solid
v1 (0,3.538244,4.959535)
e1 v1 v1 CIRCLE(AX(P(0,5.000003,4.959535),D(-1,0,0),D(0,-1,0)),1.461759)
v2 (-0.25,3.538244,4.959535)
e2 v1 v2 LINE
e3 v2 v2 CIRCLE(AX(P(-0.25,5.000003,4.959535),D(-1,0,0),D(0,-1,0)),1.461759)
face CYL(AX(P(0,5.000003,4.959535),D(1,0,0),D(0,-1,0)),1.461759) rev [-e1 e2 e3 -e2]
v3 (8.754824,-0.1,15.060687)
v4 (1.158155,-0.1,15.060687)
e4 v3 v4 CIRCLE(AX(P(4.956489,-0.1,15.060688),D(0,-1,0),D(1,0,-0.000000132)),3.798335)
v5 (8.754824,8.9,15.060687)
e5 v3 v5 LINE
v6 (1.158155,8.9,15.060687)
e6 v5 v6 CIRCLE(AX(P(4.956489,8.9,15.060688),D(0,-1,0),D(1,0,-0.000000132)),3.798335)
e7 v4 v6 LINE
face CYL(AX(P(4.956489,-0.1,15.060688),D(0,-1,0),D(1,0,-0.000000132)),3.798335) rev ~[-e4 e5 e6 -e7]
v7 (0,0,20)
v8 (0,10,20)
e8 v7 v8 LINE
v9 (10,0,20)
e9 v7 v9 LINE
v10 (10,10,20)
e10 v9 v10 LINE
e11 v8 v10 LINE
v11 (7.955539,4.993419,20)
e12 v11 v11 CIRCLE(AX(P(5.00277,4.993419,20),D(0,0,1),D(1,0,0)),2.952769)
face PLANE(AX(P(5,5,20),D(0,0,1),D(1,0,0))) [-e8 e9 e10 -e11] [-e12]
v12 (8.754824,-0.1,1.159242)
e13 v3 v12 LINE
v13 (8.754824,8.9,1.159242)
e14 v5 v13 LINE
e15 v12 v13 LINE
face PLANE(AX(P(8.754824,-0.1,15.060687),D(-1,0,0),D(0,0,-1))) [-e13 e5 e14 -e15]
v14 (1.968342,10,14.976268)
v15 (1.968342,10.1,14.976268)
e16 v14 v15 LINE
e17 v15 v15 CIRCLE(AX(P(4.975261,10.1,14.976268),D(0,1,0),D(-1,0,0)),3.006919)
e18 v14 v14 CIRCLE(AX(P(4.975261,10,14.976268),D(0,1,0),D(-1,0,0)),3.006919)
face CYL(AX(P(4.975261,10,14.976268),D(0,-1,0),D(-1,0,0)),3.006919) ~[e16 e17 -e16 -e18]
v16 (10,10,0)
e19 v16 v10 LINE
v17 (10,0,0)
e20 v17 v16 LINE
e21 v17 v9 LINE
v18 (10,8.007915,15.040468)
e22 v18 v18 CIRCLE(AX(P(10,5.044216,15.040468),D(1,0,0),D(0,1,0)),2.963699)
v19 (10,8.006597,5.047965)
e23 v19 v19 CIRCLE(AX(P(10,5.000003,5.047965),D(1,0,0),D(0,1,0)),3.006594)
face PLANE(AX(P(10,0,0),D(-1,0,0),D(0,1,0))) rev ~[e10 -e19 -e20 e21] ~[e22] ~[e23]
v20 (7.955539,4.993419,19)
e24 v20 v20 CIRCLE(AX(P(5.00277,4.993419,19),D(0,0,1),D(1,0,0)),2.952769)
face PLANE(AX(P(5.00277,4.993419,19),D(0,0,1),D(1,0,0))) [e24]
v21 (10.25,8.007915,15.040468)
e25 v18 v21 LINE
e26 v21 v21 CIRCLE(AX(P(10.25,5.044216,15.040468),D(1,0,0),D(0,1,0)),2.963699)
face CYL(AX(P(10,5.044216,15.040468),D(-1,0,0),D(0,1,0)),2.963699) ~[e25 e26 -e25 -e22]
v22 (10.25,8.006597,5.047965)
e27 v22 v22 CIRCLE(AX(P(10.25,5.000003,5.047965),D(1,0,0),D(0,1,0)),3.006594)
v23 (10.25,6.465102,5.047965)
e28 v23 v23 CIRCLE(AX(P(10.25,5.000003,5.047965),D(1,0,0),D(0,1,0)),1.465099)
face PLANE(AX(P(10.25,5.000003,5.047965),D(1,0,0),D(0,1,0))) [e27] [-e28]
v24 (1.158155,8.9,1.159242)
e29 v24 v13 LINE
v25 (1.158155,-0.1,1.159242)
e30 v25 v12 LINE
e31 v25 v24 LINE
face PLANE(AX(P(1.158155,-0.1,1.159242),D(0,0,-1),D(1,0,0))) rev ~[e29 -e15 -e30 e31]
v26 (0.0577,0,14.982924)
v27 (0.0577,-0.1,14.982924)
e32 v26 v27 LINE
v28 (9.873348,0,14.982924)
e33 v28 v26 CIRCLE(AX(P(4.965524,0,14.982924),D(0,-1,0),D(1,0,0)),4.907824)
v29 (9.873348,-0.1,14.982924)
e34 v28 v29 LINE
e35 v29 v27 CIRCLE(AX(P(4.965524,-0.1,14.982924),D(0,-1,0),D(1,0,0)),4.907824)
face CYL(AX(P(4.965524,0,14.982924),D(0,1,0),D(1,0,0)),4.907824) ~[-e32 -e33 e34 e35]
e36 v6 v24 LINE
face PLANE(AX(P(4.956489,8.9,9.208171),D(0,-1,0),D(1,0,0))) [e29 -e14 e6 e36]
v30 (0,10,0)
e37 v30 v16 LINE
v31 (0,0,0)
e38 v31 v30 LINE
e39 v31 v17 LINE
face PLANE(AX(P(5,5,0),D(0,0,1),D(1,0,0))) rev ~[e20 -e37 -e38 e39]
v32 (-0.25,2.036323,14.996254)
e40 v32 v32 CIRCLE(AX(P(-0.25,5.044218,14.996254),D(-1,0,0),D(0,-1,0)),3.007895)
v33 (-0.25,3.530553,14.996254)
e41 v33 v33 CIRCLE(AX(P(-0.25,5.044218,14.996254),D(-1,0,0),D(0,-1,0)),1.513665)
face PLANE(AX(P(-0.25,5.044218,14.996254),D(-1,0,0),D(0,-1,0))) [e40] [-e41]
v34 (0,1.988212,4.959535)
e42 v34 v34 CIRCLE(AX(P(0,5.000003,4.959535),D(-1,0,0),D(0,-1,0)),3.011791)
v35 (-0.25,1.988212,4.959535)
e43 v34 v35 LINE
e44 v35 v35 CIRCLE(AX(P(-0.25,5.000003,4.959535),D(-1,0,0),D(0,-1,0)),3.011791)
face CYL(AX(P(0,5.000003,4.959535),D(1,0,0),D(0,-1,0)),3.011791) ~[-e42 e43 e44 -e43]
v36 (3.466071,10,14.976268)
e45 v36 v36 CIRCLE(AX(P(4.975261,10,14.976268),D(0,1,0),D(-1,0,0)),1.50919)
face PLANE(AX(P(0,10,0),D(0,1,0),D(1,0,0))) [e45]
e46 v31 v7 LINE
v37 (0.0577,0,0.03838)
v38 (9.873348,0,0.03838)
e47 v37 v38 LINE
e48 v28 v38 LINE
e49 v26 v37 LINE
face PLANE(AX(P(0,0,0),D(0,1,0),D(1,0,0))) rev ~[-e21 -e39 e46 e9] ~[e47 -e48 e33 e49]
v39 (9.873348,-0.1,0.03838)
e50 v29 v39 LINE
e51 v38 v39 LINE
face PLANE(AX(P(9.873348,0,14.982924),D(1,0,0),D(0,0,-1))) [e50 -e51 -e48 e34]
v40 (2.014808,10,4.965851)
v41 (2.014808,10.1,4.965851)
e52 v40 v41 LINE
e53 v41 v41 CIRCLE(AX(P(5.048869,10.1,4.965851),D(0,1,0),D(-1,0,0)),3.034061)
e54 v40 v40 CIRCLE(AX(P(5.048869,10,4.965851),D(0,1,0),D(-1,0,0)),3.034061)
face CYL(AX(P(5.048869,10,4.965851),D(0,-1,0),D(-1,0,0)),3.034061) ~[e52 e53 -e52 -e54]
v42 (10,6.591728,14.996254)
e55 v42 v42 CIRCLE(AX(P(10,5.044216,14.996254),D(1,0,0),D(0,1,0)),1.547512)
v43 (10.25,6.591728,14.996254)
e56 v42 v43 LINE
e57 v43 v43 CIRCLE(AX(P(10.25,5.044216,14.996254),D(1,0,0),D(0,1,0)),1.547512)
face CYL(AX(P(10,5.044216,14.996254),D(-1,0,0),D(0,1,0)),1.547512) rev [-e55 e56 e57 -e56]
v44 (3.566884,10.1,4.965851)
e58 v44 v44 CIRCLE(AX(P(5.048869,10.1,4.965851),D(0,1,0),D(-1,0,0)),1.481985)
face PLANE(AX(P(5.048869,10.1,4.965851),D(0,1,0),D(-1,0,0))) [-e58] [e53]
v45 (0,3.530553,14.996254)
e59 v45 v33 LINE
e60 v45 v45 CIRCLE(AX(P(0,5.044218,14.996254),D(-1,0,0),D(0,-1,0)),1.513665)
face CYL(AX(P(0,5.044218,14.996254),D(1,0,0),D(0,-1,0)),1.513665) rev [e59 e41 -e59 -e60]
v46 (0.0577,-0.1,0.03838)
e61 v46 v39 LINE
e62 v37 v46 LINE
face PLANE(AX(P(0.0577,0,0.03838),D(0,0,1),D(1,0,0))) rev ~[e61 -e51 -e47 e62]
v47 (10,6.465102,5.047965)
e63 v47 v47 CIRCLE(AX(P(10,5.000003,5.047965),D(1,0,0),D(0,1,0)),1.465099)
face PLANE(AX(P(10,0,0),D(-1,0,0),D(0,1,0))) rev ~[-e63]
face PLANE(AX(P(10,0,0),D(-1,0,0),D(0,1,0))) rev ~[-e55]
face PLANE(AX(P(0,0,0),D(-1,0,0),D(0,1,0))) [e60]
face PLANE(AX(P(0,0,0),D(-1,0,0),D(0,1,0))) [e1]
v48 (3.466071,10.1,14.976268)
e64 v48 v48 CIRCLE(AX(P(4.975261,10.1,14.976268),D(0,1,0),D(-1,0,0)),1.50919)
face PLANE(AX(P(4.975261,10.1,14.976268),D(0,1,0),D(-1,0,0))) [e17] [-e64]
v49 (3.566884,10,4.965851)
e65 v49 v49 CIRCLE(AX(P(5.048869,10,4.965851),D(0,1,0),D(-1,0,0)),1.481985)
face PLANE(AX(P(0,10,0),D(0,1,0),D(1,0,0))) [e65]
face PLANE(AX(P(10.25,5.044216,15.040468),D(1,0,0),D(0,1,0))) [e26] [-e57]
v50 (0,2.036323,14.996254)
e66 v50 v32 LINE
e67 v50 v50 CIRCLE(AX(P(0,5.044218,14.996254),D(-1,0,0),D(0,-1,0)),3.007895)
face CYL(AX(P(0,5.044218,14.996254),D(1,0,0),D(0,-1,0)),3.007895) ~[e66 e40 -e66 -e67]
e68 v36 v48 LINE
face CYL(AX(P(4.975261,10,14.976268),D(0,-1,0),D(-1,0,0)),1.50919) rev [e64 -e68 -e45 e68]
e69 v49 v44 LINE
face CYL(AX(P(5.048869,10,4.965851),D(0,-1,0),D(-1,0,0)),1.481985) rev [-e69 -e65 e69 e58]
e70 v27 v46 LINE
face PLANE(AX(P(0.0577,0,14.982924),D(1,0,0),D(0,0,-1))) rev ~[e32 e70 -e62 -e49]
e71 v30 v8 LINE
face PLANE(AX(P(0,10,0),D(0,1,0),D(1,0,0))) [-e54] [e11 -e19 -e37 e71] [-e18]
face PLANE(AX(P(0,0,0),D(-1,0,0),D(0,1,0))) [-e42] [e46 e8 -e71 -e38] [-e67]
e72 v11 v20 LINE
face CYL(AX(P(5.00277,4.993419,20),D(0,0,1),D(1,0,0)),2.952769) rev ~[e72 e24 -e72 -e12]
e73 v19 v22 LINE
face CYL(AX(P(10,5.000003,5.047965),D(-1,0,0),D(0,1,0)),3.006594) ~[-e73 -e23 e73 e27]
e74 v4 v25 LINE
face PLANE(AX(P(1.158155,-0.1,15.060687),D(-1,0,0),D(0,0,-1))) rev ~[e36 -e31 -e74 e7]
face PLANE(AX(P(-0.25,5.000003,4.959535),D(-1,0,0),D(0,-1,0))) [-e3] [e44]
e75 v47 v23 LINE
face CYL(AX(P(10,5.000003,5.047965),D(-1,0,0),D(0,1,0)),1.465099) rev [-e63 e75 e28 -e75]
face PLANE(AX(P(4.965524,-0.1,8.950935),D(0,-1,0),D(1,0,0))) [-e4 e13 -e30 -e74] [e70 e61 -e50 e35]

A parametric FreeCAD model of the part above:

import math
import FreeCAD as App
import Part
import Sketcher

V = App.Vector
Q = App.Units.Quantity


def add_polygon(sketch, points):
    """Adds a closed chain of lines whose ends are joined by coincident constraints."""
    first, n = sketch.GeometryCount, len(points)
    for a, b in zip(points, points[1:] + points[:1]):
        sketch.addGeometry(Part.LineSegment(App.Vector(*a, 0), App.Vector(*b, 0)), False)
    for i in range(n):
        sketch.addConstraint(Sketcher.Constraint("Coincident", first + i, 2, first + (i + 1) % n, 1))

doc = App.newDocument("Part")
body = doc.addObject("PartDesign::Body", "Body")

# Sketch on XY plane
sketch1 = body.newObject("Sketcher::SketchObject", "Sketch")
sketch1.AttachmentSupport = (doc.getObject("XY_Plane"), [""])
sketch1.MapMode = "FlatFace"
add_polygon(sketch1, [(0, 10), (0, 0), (10, 0), (10, 10)])  # lines 0-3
sketch1.addConstraint([
    Sketcher.Constraint("Vertical", 0),
    Sketcher.Constraint("Horizontal", 1),
    Sketcher.Constraint("Vertical", 2),
    Sketcher.Constraint("Horizontal", 3),
    Sketcher.Constraint("Coincident", 0, 2, -1, 1),
    Sketcher.Constraint("Equal", 3, 0),
    Sketcher.Constraint("DistanceX", 1, 1, 1, 2, Q("10 mm")),
])
pad1 = body.newObject("PartDesign::Pad", "Pad")
pad1.Profile = sketch1
pad1.Length = 20

# Sketch on XZ plane
sketch2 = body.newObject("Sketcher::SketchObject", "Sketch001")
sketch2.AttachmentSupport = (doc.getObject("XZ_Plane"), [""])
sketch2.MapMode = "FlatFace"
sketch2.addGeometry([
    Part.ArcOfCircle(Part.Circle(V(5, 15, 0), V(0, 0, 1), 4.9), math.radians(0), math.radians(180)),
    Part.LineSegment(V(0.1, 15, 0), V(0.1, 0, 0)),
    Part.LineSegment(V(0.1, 0, 0), V(9.9, 0, 0)),
    Part.LineSegment(V(9.9, 0, 0), V(9.9, 15, 0)),
], False)
sketch2.addConstraint([
    Sketcher.Constraint("Tangent", 0, 2, 1, 1),
    Sketcher.Constraint("Coincident", 1, 2, 2, 1),
    Sketcher.Constraint("Coincident", 2, 2, 3, 1),
    Sketcher.Constraint("Tangent", 3, 2, 0, 1),
    Sketcher.Constraint("Vertical", 1),
    Sketcher.Constraint("Horizontal", 2),
    Sketcher.Constraint("Vertical", 3),
    Sketcher.Constraint("Radius", 0, Q("4.907824 mm")),
    Sketcher.Constraint("DistanceX", -1, 1, 0, 2, Q("0.0577 mm")),
    Sketcher.Constraint("DistanceY", 1, 2, 1, 1, Q("14.944544 mm")),
    Sketcher.Constraint("DistanceY", -1, 1, 1, 2, Q("0.03838 mm")),
])
pad2 = body.newObject("PartDesign::Pad", "Pad001")
pad2.Profile = sketch2
pad2.Length = 0.1

# Sketch on XZ plane
sketch3 = body.newObject("Sketcher::SketchObject", "Sketch002")
sketch3.AttachmentSupport = (doc.getObject("XZ_Plane"), [""])
sketch3.MapMode = "FlatFace"
sketch3.AttachmentOffset = App.Placement(V(0, 0, 0.1), App.Rotation())
sketch3.addGeometry([
    Part.ArcOfCircle(Part.Circle(V(5, 15.1, 0), V(0, 0, 1), 3.8), math.radians(0), math.radians(180)),
    Part.LineSegment(V(1.2, 15.1, 0), V(1.2, 1.2, 0)),
    Part.LineSegment(V(1.2, 1.2, 0), V(8.8, 1.2, 0)),
    Part.LineSegment(V(8.8, 1.2, 0), V(8.8, 15.1, 0)),
], False)
sketch3.addConstraint([
    Sketcher.Constraint("Tangent", 0, 2, 1, 1),
    Sketcher.Constraint("Coincident", 1, 2, 2, 1),
    Sketcher.Constraint("Coincident", 2, 2, 3, 1),
    Sketcher.Constraint("Tangent", 3, 2, 0, 1),
    Sketcher.Constraint("Vertical", 1),
    Sketcher.Constraint("Horizontal", 2),
    Sketcher.Constraint("Vertical", 3),
    Sketcher.Constraint("Radius", 0, Q("3.798335 mm")),
    Sketcher.Constraint("DistanceY", 1, 2, 1, 1, Q("13.901445 mm")),
    Sketcher.Constraint("DistanceX", -1, 1, 0, 3, Q("4.956489 mm")),
    Sketcher.Constraint("DistanceY", -1, 1, 0, 3, Q("15.060688 mm")),
])
pocket1 = body.newObject("PartDesign::Pocket", "Pocket")
pocket1.Profile = sketch3
pocket1.Length = 9

# Sketch on YZ plane
sketch4 = body.newObject("Sketcher::SketchObject", "Sketch003")
sketch4.AttachmentSupport = (doc.getObject("YZ_Plane"), [""])
sketch4.MapMode = "FlatFace"
sketch4.AttachmentOffset = App.Placement(V(0, 0, 10), App.Rotation())
sketch4.addGeometry([
    Part.Circle(V(5, 5, 0), V(0, 0, 1), 3),
    Part.Circle(V(5, 5, 0), V(0, 0, 1), 1.5),
    Part.Circle(V(5, 15, 0), V(0, 0, 1), 3),
    Part.Circle(V(5, 15, 0), V(0, 0, 1), 1.5),
], False)
sketch4.addConstraint([
    Sketcher.Constraint("Coincident", 1, 3, 0, 3),
    Sketcher.Constraint("Vertical", 2, 3, 3, 3),
    Sketcher.Constraint("Diameter", 2, Q("5.927398 mm")),
    Sketcher.Constraint("Diameter", 0, Q("6.013188 mm")),
    Sketcher.Constraint("Diameter", 1, Q("2.930198 mm")),
    Sketcher.Constraint("Diameter", 3, Q("3.095024 mm")),
    Sketcher.Constraint("DistanceY", -1, 1, 2, 3, Q("15.040468 mm")),
    Sketcher.Constraint("DistanceY", 0, 3, 3, 3, Q("9.948289 mm")),
    Sketcher.Constraint("DistanceX", -1, 1, 0, 3, Q("5.000003 mm")),
    Sketcher.Constraint("DistanceY", -1, 1, 0, 3, Q("5.047965 mm")),
    Sketcher.Constraint("DistanceX", -1, 1, 2, 3, Q("5.044216 mm")),
])
pad3 = body.newObject("PartDesign::Pad", "Pad002")
pad3.Profile = sketch4
pad3.Length = 0.25

# Sketch on YZ plane
sketch5 = body.newObject("Sketcher::SketchObject", "Sketch004")
sketch5.AttachmentSupport = (doc.getObject("YZ_Plane"), [""])
sketch5.MapMode = "FlatFace"
sketch5.addGeometry([
    Part.Circle(V(5, 15, 0), V(0, 0, 1), 3),
    Part.Circle(V(5, 15, 0), V(0, 0, 1), 1.5),
    Part.Circle(V(5, 5, 0), V(0, 0, 1), 3),
    Part.Circle(V(5, 5, 0), V(0, 0, 1), 1.5),
], False)
sketch5.addConstraint([
    Sketcher.Constraint("Coincident", 1, 3, 0, 3),
    Sketcher.Constraint("Coincident", 3, 3, 2, 3),
    Sketcher.Constraint("Diameter", 0, Q("6.01579 mm")),
    Sketcher.Constraint("Diameter", 1, Q("3.02733 mm")),
    Sketcher.Constraint("Diameter", 3, Q("2.923518 mm")),
    Sketcher.Constraint("Diameter", 2, Q("6.023582 mm")),
    Sketcher.Constraint("DistanceY", 2, 3, 0, 3, Q("10.036719 mm")),
    Sketcher.Constraint("DistanceX", -1, 1, 0, 3, Q("5.044218 mm")),
    Sketcher.Constraint("DistanceY", -1, 1, 0, 3, Q("14.996254 mm")),
    Sketcher.Constraint("DistanceX", -1, 1, 2, 3, Q("5.000003 mm")),
])
pad4 = body.newObject("PartDesign::Pad", "Pad003")
pad4.Profile = sketch5
pad4.Length = 0.25
pad4.Reversed = True

# Sketch on XZ plane
sketch6 = body.newObject("Sketcher::SketchObject", "Sketch005")
sketch6.AttachmentSupport = (doc.getObject("XZ_Plane"), [""])
sketch6.MapMode = "FlatFace"
sketch6.AttachmentOffset = App.Placement(V(0, 0, -10), App.Rotation())
sketch6.addGeometry([
    Part.Circle(V(5, 15, 0), V(0, 0, 1), 3),
    Part.Circle(V(5, 15, 0), V(0, 0, 1), 1.5),
    Part.Circle(V(5, 5, 0), V(0, 0, 1), 3),
    Part.Circle(V(5, 5, 0), V(0, 0, 1), 1.5),
], False)
sketch6.addConstraint([
    Sketcher.Constraint("Coincident", 1, 3, 0, 3),
    Sketcher.Constraint("Coincident", 3, 3, 2, 3),
    Sketcher.Constraint("Diameter", 1, Q("3.01838 mm")),
    Sketcher.Constraint("Diameter", 2, Q("6.068122 mm")),
    Sketcher.Constraint("Diameter", 3, Q("2.96397 mm")),
    Sketcher.Constraint("Diameter", 0, Q("6.013838 mm")),
    Sketcher.Constraint("DistanceX", -1, 1, 0, 3, Q("4.975261 mm")),
    Sketcher.Constraint("DistanceX", -1, 1, 2, 3, Q("5.048869 mm")),
    Sketcher.Constraint("DistanceY", -1, 1, 2, 3, Q("4.965851 mm")),
    Sketcher.Constraint("DistanceY", -1, 1, 0, 3, Q("14.976268 mm")),
])
pad5 = body.newObject("PartDesign::Pad", "Pad004")
pad5.Profile = sketch6
pad5.Length = 0.1
pad5.Reversed = True

# Sketch on XY plane
sketch7 = body.newObject("Sketcher::SketchObject", "Sketch006")
sketch7.AttachmentSupport = (doc.getObject("XY_Plane"), [""])
sketch7.MapMode = "FlatFace"
sketch7.AttachmentOffset = App.Placement(V(0, 0, 20), App.Rotation())
sketch7.addGeometry(Part.Circle(V(5, 5, 0), V(0, 0, 1), 3), False)
sketch7.addConstraint([
    Sketcher.Constraint("Diameter", 0, Q("5.905538 mm")),
    Sketcher.Constraint("DistanceX", -1, 1, 0, 3, Q("5.00277 mm")),
    Sketcher.Constraint("DistanceY", -1, 1, 0, 3, Q("4.993419 mm")),
])
pocket2 = body.newObject("PartDesign::Pocket", "Pocket001")
pocket2.Profile = sketch7
pocket2.Length = 1

doc.recompute()
